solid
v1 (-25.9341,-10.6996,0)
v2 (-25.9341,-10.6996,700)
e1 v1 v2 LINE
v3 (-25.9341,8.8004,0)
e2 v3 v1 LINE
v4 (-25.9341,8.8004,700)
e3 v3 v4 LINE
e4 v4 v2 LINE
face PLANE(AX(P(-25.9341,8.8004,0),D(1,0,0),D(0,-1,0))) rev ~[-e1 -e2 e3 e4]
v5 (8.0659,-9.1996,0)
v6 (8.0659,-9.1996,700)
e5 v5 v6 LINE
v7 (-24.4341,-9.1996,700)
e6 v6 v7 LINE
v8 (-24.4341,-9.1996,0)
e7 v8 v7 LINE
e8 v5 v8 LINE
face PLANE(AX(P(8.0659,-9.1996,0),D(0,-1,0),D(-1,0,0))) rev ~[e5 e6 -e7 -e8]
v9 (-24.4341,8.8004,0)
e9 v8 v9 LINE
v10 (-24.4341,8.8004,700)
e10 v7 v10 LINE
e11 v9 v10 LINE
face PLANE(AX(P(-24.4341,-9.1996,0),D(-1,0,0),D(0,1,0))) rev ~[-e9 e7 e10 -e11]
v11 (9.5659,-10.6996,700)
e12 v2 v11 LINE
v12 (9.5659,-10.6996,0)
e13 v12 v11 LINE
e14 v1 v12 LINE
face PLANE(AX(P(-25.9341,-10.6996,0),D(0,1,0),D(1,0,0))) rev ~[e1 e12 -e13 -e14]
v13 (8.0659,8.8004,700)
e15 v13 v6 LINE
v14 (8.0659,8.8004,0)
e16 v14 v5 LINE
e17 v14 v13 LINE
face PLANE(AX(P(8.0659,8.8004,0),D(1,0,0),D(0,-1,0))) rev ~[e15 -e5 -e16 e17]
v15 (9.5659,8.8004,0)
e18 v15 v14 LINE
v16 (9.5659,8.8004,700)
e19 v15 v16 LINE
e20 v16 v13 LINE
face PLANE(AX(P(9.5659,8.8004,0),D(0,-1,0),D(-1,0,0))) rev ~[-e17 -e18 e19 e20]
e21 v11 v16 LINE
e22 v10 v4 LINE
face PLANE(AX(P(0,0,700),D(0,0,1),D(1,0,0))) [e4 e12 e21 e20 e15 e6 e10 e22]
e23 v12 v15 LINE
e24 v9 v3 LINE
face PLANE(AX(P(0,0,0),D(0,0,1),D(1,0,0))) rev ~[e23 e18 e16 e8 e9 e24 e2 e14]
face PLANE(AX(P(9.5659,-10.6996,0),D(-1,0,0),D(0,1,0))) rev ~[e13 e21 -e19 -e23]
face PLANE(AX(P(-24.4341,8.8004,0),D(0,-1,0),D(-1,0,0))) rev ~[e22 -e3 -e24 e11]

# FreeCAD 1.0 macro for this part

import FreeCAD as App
import Part
import Sketcher

V = App.Vector
Q = App.Units.Quantity

doc = App.newDocument("Part")
params = doc.addObject("Spreadsheet::Sheet", "Params")
for row, (alias, value) in enumerate([
    ("sketch1_width", "1.5 mm"),
    ("sketch1_width2", "35.5 mm"),
    ("sketch1_height", "19.5 mm"),
    ("pad1_length", "700 mm"),
], start=1):
    params.set(f"A{row}", alias)
    params.set(f"B{row}", "=" + value)
    params.setAlias(f"B{row}", alias)

body = doc.addObject("PartDesign::Body", "Body")

sketch1 = body.newObject("Sketcher::SketchObject", "Sketch")
sketch1.AttachmentSupport = (doc.getObject("XY_Plane"), [""])
sketch1.MapMode = "FlatFace"
sketch1.addGeometry(Part.LineSegment(V(-24.4, 8.8, 0), V(-25.9, 8.8, 0)), False)
sketch1.addGeometry(Part.LineSegment(V(-25.9, 8.8, 0), V(-25.9, -10.7, 0)), False)
sketch1.addGeometry(Part.LineSegment(V(-25.9, -10.7, 0), V(9.6, -10.7, 0)), False)
sketch1.addGeometry(Part.LineSegment(V(9.6, -10.7, 0), V(9.6, 8.8, 0)), False)
sketch1.addGeometry(Part.LineSegment(V(9.6, 8.8, 0), V(8.1, 8.8, 0)), False)
sketch1.addGeometry(Part.LineSegment(V(8.1, 8.8, 0), V(8.1, -9.2, 0)), False)
sketch1.addGeometry(Part.LineSegment(V(8.1, -9.2, 0), V(-24.4, -9.2, 0)), False)
sketch1.addGeometry(Part.LineSegment(V(-24.4, -9.2, 0), V(-24.4, 8.8, 0)), False)
sketch1.addConstraint(Sketcher.Constraint("Coincident", 0, 2, 1, 1))
sketch1.addConstraint(Sketcher.Constraint("Coincident", 1, 2, 2, 1))
sketch1.addConstraint(Sketcher.Constraint("Coincident", 2, 2, 3, 1))
sketch1.addConstraint(Sketcher.Constraint("Coincident", 3, 2, 4, 1))
sketch1.addConstraint(Sketcher.Constraint("Coincident", 4, 2, 5, 1))
sketch1.addConstraint(Sketcher.Constraint("Coincident", 5, 2, 6, 1))
sketch1.addConstraint(Sketcher.Constraint("Coincident", 6, 2, 7, 1))
sketch1.addConstraint(Sketcher.Constraint("Coincident", 7, 2, 0, 1))
sketch1.addConstraint(Sketcher.Constraint("Horizontal", 0))
sketch1.addConstraint(Sketcher.Constraint("Vertical", 1))
sketch1.addConstraint(Sketcher.Constraint("Horizontal", 2))
sketch1.addConstraint(Sketcher.Constraint("Vertical", 3))
sketch1.addConstraint(Sketcher.Constraint("Horizontal", 4))
sketch1.addConstraint(Sketcher.Constraint("Vertical", 5))
sketch1.addConstraint(Sketcher.Constraint("Horizontal", 6))
sketch1.addConstraint(Sketcher.Constraint("Vertical", 7))
sketch1.addConstraint(Sketcher.Constraint("Horizontal", 0, 2, 3, 2))
sketch1.addConstraint(Sketcher.Constraint("Equal", 0, 4))
sketch1.addConstraint(Sketcher.Constraint("DistanceX", 0, 2, 0, 1, Q("1.5 mm")))
sketch1.addConstraint(Sketcher.Constraint("DistanceX", 2, 1, 2, 2, Q("35.5 mm")))
sketch1.addConstraint(Sketcher.Constraint("DistanceY", 1, 2, 1, 1, Q("19.5 mm")))
sketch1.addConstraint(Sketcher.Constraint("DistanceY", 2, 2, 5, 2, Q("1.5 mm")))
sketch1.addConstraint(Sketcher.Constraint("DistanceX", 0, 2, -1, 1, Q("25.934 mm")))
sketch1.addConstraint(Sketcher.Constraint("DistanceY", -1, 1, 0, 2, Q("8.8004 mm")))
sketch1.setExpression("Constraints[18]", "Params.sketch1_width")
sketch1.setExpression("Constraints[19]", "Params.sketch1_width2")
sketch1.setExpression("Constraints[20]", "Params.sketch1_height")
pad1 = body.newObject("PartDesign::Pad", "Pad")
pad1.Profile = sketch1
pad1.setExpression("Length", "Params.pad1_length")

doc.recompute()
